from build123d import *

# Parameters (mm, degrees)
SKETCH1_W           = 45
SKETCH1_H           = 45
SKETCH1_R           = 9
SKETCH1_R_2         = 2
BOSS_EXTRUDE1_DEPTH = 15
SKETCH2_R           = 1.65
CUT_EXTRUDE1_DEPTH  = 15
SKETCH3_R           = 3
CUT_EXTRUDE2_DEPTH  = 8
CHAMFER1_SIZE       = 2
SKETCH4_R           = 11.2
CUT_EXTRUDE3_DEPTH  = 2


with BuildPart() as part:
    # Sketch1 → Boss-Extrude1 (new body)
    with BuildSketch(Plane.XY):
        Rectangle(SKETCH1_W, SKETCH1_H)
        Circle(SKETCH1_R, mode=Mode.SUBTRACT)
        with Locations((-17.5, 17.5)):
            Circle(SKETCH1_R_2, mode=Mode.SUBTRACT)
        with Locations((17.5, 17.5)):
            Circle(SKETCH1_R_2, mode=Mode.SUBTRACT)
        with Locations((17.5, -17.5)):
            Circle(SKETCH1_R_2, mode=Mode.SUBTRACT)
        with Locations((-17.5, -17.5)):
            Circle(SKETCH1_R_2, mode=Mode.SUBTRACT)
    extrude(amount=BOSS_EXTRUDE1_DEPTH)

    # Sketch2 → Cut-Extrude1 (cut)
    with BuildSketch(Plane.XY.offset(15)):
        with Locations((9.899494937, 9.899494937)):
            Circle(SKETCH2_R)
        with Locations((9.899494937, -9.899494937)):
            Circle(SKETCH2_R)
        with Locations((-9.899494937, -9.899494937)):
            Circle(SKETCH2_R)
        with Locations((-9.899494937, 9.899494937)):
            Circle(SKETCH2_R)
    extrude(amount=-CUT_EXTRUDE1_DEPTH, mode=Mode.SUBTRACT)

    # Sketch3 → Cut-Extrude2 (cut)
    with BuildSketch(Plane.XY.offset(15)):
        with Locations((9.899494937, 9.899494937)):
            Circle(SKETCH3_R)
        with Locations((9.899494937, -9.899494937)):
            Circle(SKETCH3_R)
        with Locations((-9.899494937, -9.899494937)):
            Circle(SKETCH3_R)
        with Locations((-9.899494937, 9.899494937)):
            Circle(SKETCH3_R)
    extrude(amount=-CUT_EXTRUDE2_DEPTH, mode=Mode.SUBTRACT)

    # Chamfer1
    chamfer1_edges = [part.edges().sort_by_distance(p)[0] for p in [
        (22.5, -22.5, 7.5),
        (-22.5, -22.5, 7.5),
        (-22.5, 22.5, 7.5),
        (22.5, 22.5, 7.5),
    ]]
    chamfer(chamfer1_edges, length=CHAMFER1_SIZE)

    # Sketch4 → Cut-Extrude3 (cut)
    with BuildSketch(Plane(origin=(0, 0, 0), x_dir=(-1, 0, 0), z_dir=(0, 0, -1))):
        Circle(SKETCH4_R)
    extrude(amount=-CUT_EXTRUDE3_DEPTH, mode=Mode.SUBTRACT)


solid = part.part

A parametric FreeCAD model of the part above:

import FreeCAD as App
import Part
import Sketcher


def edges_at(feature, points):
    """Names of the edges that pass closest to the given points."""
    edges = feature.Shape.Edges
    near = lambda p: min(range(len(edges)), key=lambda i: edges[i].distToShape(Part.Vertex(*p))[0])
    return sorted({f"Edge{near(p) + 1}" for p in points})


def add_polygon(sketch, points):
    """Adds a closed chain of lines whose ends are joined by coincident constraints."""
    first, n = sketch.GeometryCount, len(points)
    for a, b in zip(points, points[1:] + points[:1]):
        sketch.addGeometry(Part.LineSegment(App.Vector(*a, 0), App.Vector(*b, 0)), False)
    for i in range(n):
        sketch.addConstraint(Sketcher.Constraint("Coincident", first + i, 2, first + (i + 1) % n, 1))

doc = App.newDocument("Part")
body = doc.addObject("PartDesign::Body", "Body")

# Sketch on XY plane
sketch1 = doc.addObject("Sketcher::SketchObject", "Sketch")
body.addObject(sketch1)
sketch1.AttachmentSupport = (doc.XY_Plane, [""])
sketch1.MapMode = "FlatFace"
add_polygon(sketch1, [(-22.5, 22.5), (-22.5, -22.5), (22.5, -22.5), (22.5, 22.5)])  # lines 0-3
sketch1.addGeometry(Part.Circle(App.Vector(-17.5, -17.5, 0), App.Vector(0, 0, 1), 2), False)  # 4
sketch1.addGeometry(Part.Circle(App.Vector(17.5, -17.5, 0), App.Vector(0, 0, 1), 2), False)  # 5
sketch1.addGeometry(Part.Circle(App.Vector(-17.5, 17.5, 0), App.Vector(0, 0, 1), 2), False)  # 6
sketch1.addGeometry(Part.Circle(App.Vector(0, 0, 0), App.Vector(0, 0, 1), 9), False)  # 7
sketch1.addGeometry(Part.Circle(App.Vector(17.5, 17.5, 0), App.Vector(0, 0, 1), 2), False)  # 8
sketch1.addConstraint(Sketcher.Constraint("Vertical", 0))
sketch1.addConstraint(Sketcher.Constraint("Horizontal", 1))
sketch1.addConstraint(Sketcher.Constraint("Vertical", 2))
sketch1.addConstraint(Sketcher.Constraint("Horizontal", 3))
sketch1.addConstraint(Sketcher.Constraint("Coincident", 7, 3, -1, 1))
sketch1.addConstraint(Sketcher.Constraint("Equal", 4, 5))
sketch1.addConstraint(Sketcher.Constraint("Equal", 5, 6))
sketch1.addConstraint(Sketcher.Constraint("Equal", 6, 8))
sketch1.addConstraint(Sketcher.Constraint("Symmetric", 5, 3, 6, 3, -1, 1))
sketch1.addConstraint(Sketcher.Constraint("Symmetric", 4, 3, 8, 3, -1, 1))
sketch1.addConstraint(Sketcher.Constraint("Symmetric", 0, 2, 2, 2, -1, 1))
sketch1.addConstraint(Sketcher.Constraint("Symmetric", 4, 3, 5, 3, -2))
sketch1.addConstraint(Sketcher.Constraint("Equal", 3, 0))
sketch1.addConstraint(Sketcher.Constraint("Diameter", 4, 4.0))
sketch1.addConstraint(Sketcher.Constraint("Diameter", 7, 18.0))
sketch1.addConstraint(Sketcher.Constraint("DistanceX", 1, 1, 1, 2, 45.0))
sketch1.addConstraint(Sketcher.Constraint("DistanceX", 4, 3, 5, 3, 35.0))
sketch1.addConstraint(Sketcher.Constraint("DistanceY", 4, 3, 6, 3, 35.0))
pad1 = doc.addObject("PartDesign::Pad", "Pad")
body.addObject(pad1)
pad1.Profile = sketch1
pad1.Length = 15

# Sketch on XY plane
sketch2 = doc.addObject("Sketcher::SketchObject", "Sketch001")
body.addObject(sketch2)
sketch2.AttachmentSupport = (doc.XY_Plane, [""])
sketch2.MapMode = "FlatFace"
sketch2.AttachmentOffset = App.Placement(App.Vector(0, 0, 15), App.Rotation())
sketch2.addGeometry(Part.Circle(App.Vector(9.9, 9.9, 0), App.Vector(0, 0, 1), 1.6), False)
sketch2.addGeometry(Part.Circle(App.Vector(9.9, -9.9, 0), App.Vector(0, 0, 1), 1.6), False)
sketch2.addGeometry(Part.Circle(App.Vector(-9.9, -9.9, 0), App.Vector(0, 0, 1), 1.6), False)
sketch2.addGeometry(Part.Circle(App.Vector(-9.9, 9.9, 0), App.Vector(0, 0, 1), 1.6), False)
sketch2.addConstraint(Sketcher.Constraint("Equal", 0, 1))
sketch2.addConstraint(Sketcher.Constraint("Equal", 1, 2))
sketch2.addConstraint(Sketcher.Constraint("Equal", 2, 3))
sketch2.addConstraint(Sketcher.Constraint("Symmetric", 0, 3, 2, 3, -1, 1))
sketch2.addConstraint(Sketcher.Constraint("Symmetric", 1, 3, 3, 3, -1, 1))
sketch2.addConstraint(Sketcher.Constraint("Symmetric", 1, 3, 2, 3, -2))
sketch2.addConstraint(Sketcher.Constraint("Diameter", 0, 3.3))
sketch2.addConstraint(Sketcher.Constraint("DistanceY", 1, 3, 0, 3, 19.79899))
sketch2.addConstraint(Sketcher.Constraint("DistanceX", 2, 3, 1, 3, 19.79899))
pocket1 = doc.addObject("PartDesign::Pocket", "Pocket")
body.addObject(pocket1)
pocket1.Profile = sketch2
pocket1.Length = 15

# Sketch on XY plane
sketch3 = doc.addObject("Sketcher::SketchObject", "Sketch002")
body.addObject(sketch3)
sketch3.AttachmentSupport = (doc.XY_Plane, [""])
sketch3.MapMode = "FlatFace"
sketch3.AttachmentOffset = App.Placement(App.Vector(0, 0, 15), App.Rotation())
sketch3.addGeometry(Part.Circle(App.Vector(9.9, 9.9, 0), App.Vector(0, 0, 1), 3), False)
sketch3.addGeometry(Part.Circle(App.Vector(9.9, -9.9, 0), App.Vector(0, 0, 1), 3), False)
sketch3.addGeometry(Part.Circle(App.Vector(-9.9, -9.9, 0), App.Vector(0, 0, 1), 3), False)
sketch3.addGeometry(Part.Circle(App.Vector(-9.9, 9.9, 0), App.Vector(0, 0, 1), 3), False)
sketch3.addConstraint(Sketcher.Constraint("Equal", 0, 1))
sketch3.addConstraint(Sketcher.Constraint("Equal", 1, 2))
sketch3.addConstraint(Sketcher.Constraint("Equal", 2, 3))
sketch3.addConstraint(Sketcher.Constraint("Symmetric", 0, 3, 2, 3, -1, 1))
sketch3.addConstraint(Sketcher.Constraint("Symmetric", 1, 3, 3, 3, -1, 1))
sketch3.addConstraint(Sketcher.Constraint("Symmetric", 1, 3, 2, 3, -2))
sketch3.addConstraint(Sketcher.Constraint("Diameter", 0, 6.0))
sketch3.addConstraint(Sketcher.Constraint("DistanceY", 1, 3, 0, 3, 19.79899))
sketch3.addConstraint(Sketcher.Constraint("DistanceX", 2, 3, 1, 3, 19.79899))
pocket2 = doc.addObject("PartDesign::Pocket", "Pocket001")
body.addObject(pocket2)
pocket2.Profile = sketch3
pocket2.Length = 8
doc.recompute()

chamfer = doc.addObject("PartDesign::Chamfer", "Chamfer")
body.addObject(chamfer)
chamfer.Base = (pocket2, edges_at(pocket2, [
    (22.5, -22.5, 7.5),
    (-22.5, -22.5, 7.5),
    (-22.5, 22.5, 7.5),
    (22.5, 22.5, 7.5),
]))
chamfer.Size = 2

# Sketch on XY plane
sketch4 = doc.addObject("Sketcher::SketchObject", "Sketch003")
body.addObject(sketch4)
sketch4.AttachmentSupport = (doc.XY_Plane, [""])
sketch4.MapMode = "FlatFace"
sketch4.addGeometry(Part.Circle(App.Vector(0, 0, 0), App.Vector(0, 0, 1), 11), False)
sketch4.addConstraint(Sketcher.Constraint("Coincident", 0, 3, -1, 1))
sketch4.addConstraint(Sketcher.Constraint("Diameter", 0, 22.4))
pocket3 = doc.addObject("PartDesign::Pocket", "Pocket002")
body.addObject(pocket3)
pocket3.Profile = sketch4
pocket3.Length = 2
pocket3.Reversed = True

doc.recompute()
